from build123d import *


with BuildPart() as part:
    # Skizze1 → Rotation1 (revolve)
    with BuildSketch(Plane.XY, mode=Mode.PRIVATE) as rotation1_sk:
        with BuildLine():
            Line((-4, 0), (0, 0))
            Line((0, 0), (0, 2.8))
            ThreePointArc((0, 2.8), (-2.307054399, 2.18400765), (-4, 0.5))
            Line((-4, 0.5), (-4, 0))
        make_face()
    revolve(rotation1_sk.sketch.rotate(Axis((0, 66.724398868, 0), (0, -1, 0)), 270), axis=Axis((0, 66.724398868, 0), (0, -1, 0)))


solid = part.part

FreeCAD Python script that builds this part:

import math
import FreeCAD as App
import Part
import Sketcher
Q = App.Units.Quantity

doc = App.newDocument("Part")
body = doc.addObject("PartDesign::Body", "Body")

# Sketch on XY plane
sketch1 = body.newObject("Sketcher::SketchObject", "Sketch")
sketch1.AttachmentSupport = (doc.getObject("XY_Plane"), [""])
sketch1.MapMode = "FlatFace"
sketch1.addGeometry([
    Part.LineSegment(App.Vector(-4, 0, 0), App.Vector(0, 0, 0)),
    Part.LineSegment(App.Vector(0, 0, 0), App.Vector(0, 2.8, 0)),
    Part.ArcOfCircle(Part.Circle(App.Vector(0, -1.8, 0), App.Vector(0, 0, 1), 4.6), math.radians(90), math.radians(150)),
    Part.LineSegment(App.Vector(-4, 0.5, 0), App.Vector(-4, 0, 0)),
], False)
sketch1.addConstraint([
    Sketcher.Constraint("Coincident", 0, 2, 1, 1),
    Sketcher.Constraint("Coincident", 1, 2, 2, 1),
    Sketcher.Constraint("Coincident", 2, 2, 3, 1),
    Sketcher.Constraint("Coincident", 3, 2, 0, 1),
    Sketcher.Constraint("Horizontal", 0),
    Sketcher.Constraint("Vertical", 1),
    Sketcher.Constraint("Vertical", 3),
    Sketcher.Constraint("Coincident", 0, 2, -1, 1),
    Sketcher.Constraint("PointOnObject", 2, 3, -2),
    Sketcher.Constraint("DistanceX", 0, 1, 0, 2, Q("4 mm")),
    Sketcher.Constraint("DistanceY", 1, 1, 1, 2, Q("2.8 mm")),
    Sketcher.Constraint("DistanceY", 3, 2, 3, 1, Q("0.5 mm")),
])
revolution = body.newObject("PartDesign::Revolution", "Revolution")
revolution.Profile = sketch1
revolution.ReferenceAxis = (sketch1, ["V_Axis"])
revolution.Angle = 360

doc.recompute()
